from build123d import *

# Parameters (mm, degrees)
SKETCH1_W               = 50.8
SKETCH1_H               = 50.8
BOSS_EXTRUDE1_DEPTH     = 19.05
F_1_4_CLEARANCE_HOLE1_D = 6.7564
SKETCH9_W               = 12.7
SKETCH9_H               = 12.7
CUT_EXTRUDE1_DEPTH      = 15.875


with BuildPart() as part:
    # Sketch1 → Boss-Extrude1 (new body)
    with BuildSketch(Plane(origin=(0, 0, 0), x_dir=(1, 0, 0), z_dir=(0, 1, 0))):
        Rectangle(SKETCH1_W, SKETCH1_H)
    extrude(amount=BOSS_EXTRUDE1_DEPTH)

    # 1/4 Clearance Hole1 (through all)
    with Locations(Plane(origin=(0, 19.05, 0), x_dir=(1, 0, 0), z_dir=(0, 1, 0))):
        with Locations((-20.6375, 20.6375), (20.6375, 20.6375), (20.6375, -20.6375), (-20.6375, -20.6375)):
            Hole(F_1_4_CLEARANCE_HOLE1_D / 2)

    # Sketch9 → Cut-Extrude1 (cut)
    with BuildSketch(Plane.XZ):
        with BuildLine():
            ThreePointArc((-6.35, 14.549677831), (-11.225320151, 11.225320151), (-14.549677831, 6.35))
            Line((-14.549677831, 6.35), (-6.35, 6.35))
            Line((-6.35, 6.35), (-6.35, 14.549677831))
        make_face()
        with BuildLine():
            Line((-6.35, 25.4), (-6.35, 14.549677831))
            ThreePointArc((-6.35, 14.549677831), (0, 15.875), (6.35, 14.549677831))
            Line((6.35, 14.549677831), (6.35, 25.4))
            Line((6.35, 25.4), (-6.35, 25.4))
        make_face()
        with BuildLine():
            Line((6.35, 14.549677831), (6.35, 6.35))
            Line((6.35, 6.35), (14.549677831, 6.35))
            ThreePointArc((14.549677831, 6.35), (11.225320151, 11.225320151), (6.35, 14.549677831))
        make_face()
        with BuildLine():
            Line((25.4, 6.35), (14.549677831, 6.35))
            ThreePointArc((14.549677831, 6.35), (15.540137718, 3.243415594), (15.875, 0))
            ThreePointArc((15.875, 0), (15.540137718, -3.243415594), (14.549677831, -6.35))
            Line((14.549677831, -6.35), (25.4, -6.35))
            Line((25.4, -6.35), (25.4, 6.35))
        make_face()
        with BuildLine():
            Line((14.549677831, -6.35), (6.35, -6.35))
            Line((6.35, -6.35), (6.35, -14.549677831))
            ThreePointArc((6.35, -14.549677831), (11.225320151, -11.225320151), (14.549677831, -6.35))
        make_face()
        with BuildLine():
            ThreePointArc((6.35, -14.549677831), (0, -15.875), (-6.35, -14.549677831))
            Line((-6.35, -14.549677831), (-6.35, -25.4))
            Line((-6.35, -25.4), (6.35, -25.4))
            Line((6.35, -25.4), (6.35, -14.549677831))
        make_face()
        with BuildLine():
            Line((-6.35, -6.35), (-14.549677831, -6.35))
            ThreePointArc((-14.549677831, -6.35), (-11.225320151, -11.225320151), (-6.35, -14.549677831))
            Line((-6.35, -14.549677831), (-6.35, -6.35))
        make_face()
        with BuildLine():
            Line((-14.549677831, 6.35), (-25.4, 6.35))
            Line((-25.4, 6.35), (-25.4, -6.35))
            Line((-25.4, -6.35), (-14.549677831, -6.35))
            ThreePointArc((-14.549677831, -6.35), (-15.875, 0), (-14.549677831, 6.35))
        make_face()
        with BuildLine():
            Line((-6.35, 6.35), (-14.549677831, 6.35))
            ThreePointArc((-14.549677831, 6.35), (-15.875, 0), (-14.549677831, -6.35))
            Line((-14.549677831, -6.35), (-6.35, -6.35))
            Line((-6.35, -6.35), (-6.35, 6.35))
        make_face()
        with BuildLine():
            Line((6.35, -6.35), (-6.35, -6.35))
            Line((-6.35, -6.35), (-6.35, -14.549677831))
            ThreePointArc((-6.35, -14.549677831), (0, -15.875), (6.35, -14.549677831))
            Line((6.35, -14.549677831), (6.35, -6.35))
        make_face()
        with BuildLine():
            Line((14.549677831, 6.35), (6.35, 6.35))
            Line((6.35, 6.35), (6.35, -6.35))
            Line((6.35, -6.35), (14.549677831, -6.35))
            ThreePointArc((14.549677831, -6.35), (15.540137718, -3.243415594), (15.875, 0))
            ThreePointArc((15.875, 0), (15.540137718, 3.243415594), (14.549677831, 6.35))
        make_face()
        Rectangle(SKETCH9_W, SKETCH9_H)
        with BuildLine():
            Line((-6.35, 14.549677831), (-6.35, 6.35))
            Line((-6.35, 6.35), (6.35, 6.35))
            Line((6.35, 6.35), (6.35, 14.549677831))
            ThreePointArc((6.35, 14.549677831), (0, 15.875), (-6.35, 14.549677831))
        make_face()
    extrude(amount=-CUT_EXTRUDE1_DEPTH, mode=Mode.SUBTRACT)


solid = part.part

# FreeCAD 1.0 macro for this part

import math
import FreeCAD as App
import Part
import Sketcher
from FreeCAD import Vector
Q = App.Units.Quantity


def add_polygon(sketch, points):
    """Adds a closed chain of lines whose ends are joined by coincident constraints."""
    first, n = sketch.GeometryCount, len(points)
    for a, b in zip(points, points[1:] + points[:1]):
        sketch.addGeometry(Part.LineSegment(App.Vector(*a, 0), App.Vector(*b, 0)), False)
    for i in range(n):
        sketch.addConstraint(Sketcher.Constraint("Coincident", first + i, 2, first + (i + 1) % n, 1))

doc = App.newDocument("Part")
body = doc.addObject("PartDesign::Body", "Body")

# Sketch on XZ plane
sketch1 = doc.addObject("Sketcher::SketchObject", "Sketch")
body.addObject(sketch1)
sketch1.AttachmentSupport = (doc.XZ_Plane, [""])
sketch1.MapMode = "FlatFace"
add_polygon(sketch1, [(-25.4, -25.4), (-25.4, 25.4), (25.4, 25.4), (25.4, -25.4)])  # lines 0-3
sketch1.addConstraint([
    Sketcher.Constraint("Vertical", 0),
    Sketcher.Constraint("Horizontal", 1),
    Sketcher.Constraint("Vertical", 2),
    Sketcher.Constraint("Horizontal", 3),
    Sketcher.Constraint("Symmetric", 0, 2, 2, 2, -1, 1),
    Sketcher.Constraint("Equal", 3, 0),
    Sketcher.Constraint("DistanceX", 1, 1, 1, 2, Q("2 in")),
])
pad1 = doc.addObject("PartDesign::Pad", "Pad")
body.addObject(pad1)
pad1.Profile = sketch1
pad1.Length = Q("0.75 in")
pad1.Reversed = True

# Sketch on XZ plane
sketch2 = doc.addObject("Sketcher::SketchObject", "Sketch001")
body.addObject(sketch2)
sketch2.AttachmentSupport = (doc.XZ_Plane, [""])
sketch2.MapMode = "FlatFace"
sketch2.AttachmentOffset = App.Placement(Vector(0, 0, -0.75 * 25.4), App.Rotation())
sketch2.addGeometry([
    Part.Circle(Vector(-20.6375, -20.6375, 0), Vector(0, 0, 1), 3.3782),
    Part.Circle(Vector(20.6375, -20.6375, 0), Vector(0, 0, 1), 3.3782),
    Part.Circle(Vector(20.6375, 20.6375, 0), Vector(0, 0, 1), 3.3782),
    Part.Circle(Vector(-20.6375, 20.6375, 0), Vector(0, 0, 1), 3.3782),
], False)
sketch2.addConstraint([
    Sketcher.Constraint("Equal", 0, 1),
    Sketcher.Constraint("Equal", 1, 2),
    Sketcher.Constraint("Equal", 2, 3),
    Sketcher.Constraint("Symmetric", 0, 3, 2, 3, -1, 1),
    Sketcher.Constraint("Symmetric", 1, 3, 3, 3, -1, 1),
    Sketcher.Constraint("Symmetric", 0, 3, 1, 3, -2),
    Sketcher.Constraint("Diameter", 0, Q("0.266 in")),
    Sketcher.Constraint("DistanceX", 0, 3, -1, 1, Q("0.8125 in")),
    Sketcher.Constraint("DistanceY", 0, 3, -1, 1, Q("0.8125 in")),
])
doc.recompute()
hole = doc.addObject("PartDesign::Hole", "Hole")
body.addObject(hole)
hole.Profile = sketch2
hole.ThreadType = "None"
hole.Diameter = Q("0.266 in")
hole.DepthType = "ThroughAll"
hole.Reversed = True

# Sketch on XZ plane
sketch3 = doc.addObject("Sketcher::SketchObject", "Sketch002")
body.addObject(sketch3)
sketch3.AttachmentSupport = (doc.XZ_Plane, [""])
sketch3.MapMode = "FlatFace"
sketch3.addGeometry([
    Part.ArcOfCircle(Part.Circle(Vector(0, 0, 0), Vector(0, 0, 1), 15.875), math.radians(113.578178), math.radians(156.421822)),  # 0
    Part.LineSegment(Vector(-14.549678, 6.35, 0), Vector(-25.4, 6.35, 0)),  # 1
    Part.LineSegment(Vector(-25.4, 6.35, 0), Vector(-25.4, -6.35, 0)),  # 2
    Part.LineSegment(Vector(-25.4, -6.35, 0), Vector(-14.549678, -6.35, 0)),  # 3
    Part.ArcOfCircle(Part.Circle(Vector(0, 0, 0), Vector(0, 0, 1), 15.875), math.radians(-156.421822), math.radians(-113.578178)),  # 4
    Part.LineSegment(Vector(-6.35, -14.549678, 0), Vector(-6.35, -25.4, 0)),  # 5
    Part.LineSegment(Vector(-6.35, -25.4, 0), Vector(6.35, -25.4, 0)),  # 6
    Part.LineSegment(Vector(6.35, -25.4, 0), Vector(6.35, -14.549678, 0)),  # 7
    Part.ArcOfCircle(Part.Circle(Vector(0, 0, 0), Vector(0, 0, 1), 15.875), math.radians(-66.421822), math.radians(-23.578178)),  # 8
    Part.LineSegment(Vector(14.549678, -6.35, 0), Vector(25.4, -6.35, 0)),  # 9
    Part.LineSegment(Vector(25.4, -6.35, 0), Vector(25.4, 6.35, 0)),  # 10
    Part.LineSegment(Vector(25.4, 6.35, 0), Vector(14.549678, 6.35, 0)),  # 11
    Part.ArcOfCircle(Part.Circle(Vector(0, 0, 0), Vector(0, 0, 1), 15.875), math.radians(23.578178), math.radians(66.421822)),  # 12
    Part.LineSegment(Vector(6.35, 14.549678, 0), Vector(6.35, 25.4, 0)),  # 13
    Part.LineSegment(Vector(6.35, 25.4, 0), Vector(-6.35, 25.4, 0)),  # 14
    Part.LineSegment(Vector(-6.35, 25.4, 0), Vector(-6.35, 14.549678, 0)),  # 15
], False)
sketch3.addConstraint([
    Sketcher.Constraint("Coincident", 0, 2, 1, 1),
    Sketcher.Constraint("Coincident", 1, 2, 2, 1),
    Sketcher.Constraint("Coincident", 2, 2, 3, 1),
    Sketcher.Constraint("Coincident", 3, 2, 4, 1),
    Sketcher.Constraint("Coincident", 4, 2, 5, 1),
    Sketcher.Constraint("Coincident", 5, 2, 6, 1),
    Sketcher.Constraint("Coincident", 6, 2, 7, 1),
    Sketcher.Constraint("Coincident", 7, 2, 8, 1),
    Sketcher.Constraint("Coincident", 8, 2, 9, 1),
    Sketcher.Constraint("Coincident", 9, 2, 10, 1),
    Sketcher.Constraint("Coincident", 10, 2, 11, 1),
    Sketcher.Constraint("Coincident", 11, 2, 12, 1),
    Sketcher.Constraint("Coincident", 12, 2, 13, 1),
    Sketcher.Constraint("Coincident", 13, 2, 14, 1),
    Sketcher.Constraint("Coincident", 14, 2, 15, 1),
    Sketcher.Constraint("Coincident", 15, 2, 0, 1),
    Sketcher.Constraint("Horizontal", 1),
    Sketcher.Constraint("Vertical", 2),
    Sketcher.Constraint("Horizontal", 3),
    Sketcher.Constraint("Vertical", 5),
    Sketcher.Constraint("Horizontal", 6),
    Sketcher.Constraint("Vertical", 7),
    Sketcher.Constraint("Horizontal", 9),
    Sketcher.Constraint("Vertical", 10),
    Sketcher.Constraint("Horizontal", 11),
    Sketcher.Constraint("Vertical", 13),
    Sketcher.Constraint("Horizontal", 14),
    Sketcher.Constraint("Vertical", 15),
    Sketcher.Constraint("Coincident", 0, 3, -1, 1),
    Sketcher.Constraint("Coincident", 4, 3, -1, 1),
    Sketcher.Constraint("Coincident", 8, 3, -1, 1),
    Sketcher.Constraint("Coincident", 12, 3, -1, 1),
    Sketcher.Constraint("Equal", 0, 4),
    Sketcher.Constraint("Equal", 4, 8),
    Sketcher.Constraint("Equal", 8, 12),
    Sketcher.Constraint("Symmetric", 1, 2, 9, 2, -1, 1),
    Sketcher.Constraint("Symmetric", 5, 2, 13, 2, -1, 1),
    Sketcher.Constraint("Horizontal", 4, 2, 7, 2),
    Sketcher.Constraint("Horizontal", 3, 2, 8, 2),
    Sketcher.Constraint("Horizontal", 1, 2, 10, 2),
    Sketcher.Constraint("Horizontal", 12, 2, 15, 2),
    Sketcher.Constraint("Equal", 14, 2),
    Sketcher.Constraint("Equal", 11, 5),
    Sketcher.Constraint("DistanceX", 6, 1, 6, 2, Q("0.5 in")),
    Sketcher.Constraint("DistanceX", 1, 2, -1, 1, Q("1 in")),
    Sketcher.Constraint("Radius", 0, Q("0.625 in")),
])
pocket1 = doc.addObject("PartDesign::Pocket", "Pocket")
body.addObject(pocket1)
pocket1.Profile = sketch3
pocket1.Length = Q("0.625 in")

doc.recompute()
